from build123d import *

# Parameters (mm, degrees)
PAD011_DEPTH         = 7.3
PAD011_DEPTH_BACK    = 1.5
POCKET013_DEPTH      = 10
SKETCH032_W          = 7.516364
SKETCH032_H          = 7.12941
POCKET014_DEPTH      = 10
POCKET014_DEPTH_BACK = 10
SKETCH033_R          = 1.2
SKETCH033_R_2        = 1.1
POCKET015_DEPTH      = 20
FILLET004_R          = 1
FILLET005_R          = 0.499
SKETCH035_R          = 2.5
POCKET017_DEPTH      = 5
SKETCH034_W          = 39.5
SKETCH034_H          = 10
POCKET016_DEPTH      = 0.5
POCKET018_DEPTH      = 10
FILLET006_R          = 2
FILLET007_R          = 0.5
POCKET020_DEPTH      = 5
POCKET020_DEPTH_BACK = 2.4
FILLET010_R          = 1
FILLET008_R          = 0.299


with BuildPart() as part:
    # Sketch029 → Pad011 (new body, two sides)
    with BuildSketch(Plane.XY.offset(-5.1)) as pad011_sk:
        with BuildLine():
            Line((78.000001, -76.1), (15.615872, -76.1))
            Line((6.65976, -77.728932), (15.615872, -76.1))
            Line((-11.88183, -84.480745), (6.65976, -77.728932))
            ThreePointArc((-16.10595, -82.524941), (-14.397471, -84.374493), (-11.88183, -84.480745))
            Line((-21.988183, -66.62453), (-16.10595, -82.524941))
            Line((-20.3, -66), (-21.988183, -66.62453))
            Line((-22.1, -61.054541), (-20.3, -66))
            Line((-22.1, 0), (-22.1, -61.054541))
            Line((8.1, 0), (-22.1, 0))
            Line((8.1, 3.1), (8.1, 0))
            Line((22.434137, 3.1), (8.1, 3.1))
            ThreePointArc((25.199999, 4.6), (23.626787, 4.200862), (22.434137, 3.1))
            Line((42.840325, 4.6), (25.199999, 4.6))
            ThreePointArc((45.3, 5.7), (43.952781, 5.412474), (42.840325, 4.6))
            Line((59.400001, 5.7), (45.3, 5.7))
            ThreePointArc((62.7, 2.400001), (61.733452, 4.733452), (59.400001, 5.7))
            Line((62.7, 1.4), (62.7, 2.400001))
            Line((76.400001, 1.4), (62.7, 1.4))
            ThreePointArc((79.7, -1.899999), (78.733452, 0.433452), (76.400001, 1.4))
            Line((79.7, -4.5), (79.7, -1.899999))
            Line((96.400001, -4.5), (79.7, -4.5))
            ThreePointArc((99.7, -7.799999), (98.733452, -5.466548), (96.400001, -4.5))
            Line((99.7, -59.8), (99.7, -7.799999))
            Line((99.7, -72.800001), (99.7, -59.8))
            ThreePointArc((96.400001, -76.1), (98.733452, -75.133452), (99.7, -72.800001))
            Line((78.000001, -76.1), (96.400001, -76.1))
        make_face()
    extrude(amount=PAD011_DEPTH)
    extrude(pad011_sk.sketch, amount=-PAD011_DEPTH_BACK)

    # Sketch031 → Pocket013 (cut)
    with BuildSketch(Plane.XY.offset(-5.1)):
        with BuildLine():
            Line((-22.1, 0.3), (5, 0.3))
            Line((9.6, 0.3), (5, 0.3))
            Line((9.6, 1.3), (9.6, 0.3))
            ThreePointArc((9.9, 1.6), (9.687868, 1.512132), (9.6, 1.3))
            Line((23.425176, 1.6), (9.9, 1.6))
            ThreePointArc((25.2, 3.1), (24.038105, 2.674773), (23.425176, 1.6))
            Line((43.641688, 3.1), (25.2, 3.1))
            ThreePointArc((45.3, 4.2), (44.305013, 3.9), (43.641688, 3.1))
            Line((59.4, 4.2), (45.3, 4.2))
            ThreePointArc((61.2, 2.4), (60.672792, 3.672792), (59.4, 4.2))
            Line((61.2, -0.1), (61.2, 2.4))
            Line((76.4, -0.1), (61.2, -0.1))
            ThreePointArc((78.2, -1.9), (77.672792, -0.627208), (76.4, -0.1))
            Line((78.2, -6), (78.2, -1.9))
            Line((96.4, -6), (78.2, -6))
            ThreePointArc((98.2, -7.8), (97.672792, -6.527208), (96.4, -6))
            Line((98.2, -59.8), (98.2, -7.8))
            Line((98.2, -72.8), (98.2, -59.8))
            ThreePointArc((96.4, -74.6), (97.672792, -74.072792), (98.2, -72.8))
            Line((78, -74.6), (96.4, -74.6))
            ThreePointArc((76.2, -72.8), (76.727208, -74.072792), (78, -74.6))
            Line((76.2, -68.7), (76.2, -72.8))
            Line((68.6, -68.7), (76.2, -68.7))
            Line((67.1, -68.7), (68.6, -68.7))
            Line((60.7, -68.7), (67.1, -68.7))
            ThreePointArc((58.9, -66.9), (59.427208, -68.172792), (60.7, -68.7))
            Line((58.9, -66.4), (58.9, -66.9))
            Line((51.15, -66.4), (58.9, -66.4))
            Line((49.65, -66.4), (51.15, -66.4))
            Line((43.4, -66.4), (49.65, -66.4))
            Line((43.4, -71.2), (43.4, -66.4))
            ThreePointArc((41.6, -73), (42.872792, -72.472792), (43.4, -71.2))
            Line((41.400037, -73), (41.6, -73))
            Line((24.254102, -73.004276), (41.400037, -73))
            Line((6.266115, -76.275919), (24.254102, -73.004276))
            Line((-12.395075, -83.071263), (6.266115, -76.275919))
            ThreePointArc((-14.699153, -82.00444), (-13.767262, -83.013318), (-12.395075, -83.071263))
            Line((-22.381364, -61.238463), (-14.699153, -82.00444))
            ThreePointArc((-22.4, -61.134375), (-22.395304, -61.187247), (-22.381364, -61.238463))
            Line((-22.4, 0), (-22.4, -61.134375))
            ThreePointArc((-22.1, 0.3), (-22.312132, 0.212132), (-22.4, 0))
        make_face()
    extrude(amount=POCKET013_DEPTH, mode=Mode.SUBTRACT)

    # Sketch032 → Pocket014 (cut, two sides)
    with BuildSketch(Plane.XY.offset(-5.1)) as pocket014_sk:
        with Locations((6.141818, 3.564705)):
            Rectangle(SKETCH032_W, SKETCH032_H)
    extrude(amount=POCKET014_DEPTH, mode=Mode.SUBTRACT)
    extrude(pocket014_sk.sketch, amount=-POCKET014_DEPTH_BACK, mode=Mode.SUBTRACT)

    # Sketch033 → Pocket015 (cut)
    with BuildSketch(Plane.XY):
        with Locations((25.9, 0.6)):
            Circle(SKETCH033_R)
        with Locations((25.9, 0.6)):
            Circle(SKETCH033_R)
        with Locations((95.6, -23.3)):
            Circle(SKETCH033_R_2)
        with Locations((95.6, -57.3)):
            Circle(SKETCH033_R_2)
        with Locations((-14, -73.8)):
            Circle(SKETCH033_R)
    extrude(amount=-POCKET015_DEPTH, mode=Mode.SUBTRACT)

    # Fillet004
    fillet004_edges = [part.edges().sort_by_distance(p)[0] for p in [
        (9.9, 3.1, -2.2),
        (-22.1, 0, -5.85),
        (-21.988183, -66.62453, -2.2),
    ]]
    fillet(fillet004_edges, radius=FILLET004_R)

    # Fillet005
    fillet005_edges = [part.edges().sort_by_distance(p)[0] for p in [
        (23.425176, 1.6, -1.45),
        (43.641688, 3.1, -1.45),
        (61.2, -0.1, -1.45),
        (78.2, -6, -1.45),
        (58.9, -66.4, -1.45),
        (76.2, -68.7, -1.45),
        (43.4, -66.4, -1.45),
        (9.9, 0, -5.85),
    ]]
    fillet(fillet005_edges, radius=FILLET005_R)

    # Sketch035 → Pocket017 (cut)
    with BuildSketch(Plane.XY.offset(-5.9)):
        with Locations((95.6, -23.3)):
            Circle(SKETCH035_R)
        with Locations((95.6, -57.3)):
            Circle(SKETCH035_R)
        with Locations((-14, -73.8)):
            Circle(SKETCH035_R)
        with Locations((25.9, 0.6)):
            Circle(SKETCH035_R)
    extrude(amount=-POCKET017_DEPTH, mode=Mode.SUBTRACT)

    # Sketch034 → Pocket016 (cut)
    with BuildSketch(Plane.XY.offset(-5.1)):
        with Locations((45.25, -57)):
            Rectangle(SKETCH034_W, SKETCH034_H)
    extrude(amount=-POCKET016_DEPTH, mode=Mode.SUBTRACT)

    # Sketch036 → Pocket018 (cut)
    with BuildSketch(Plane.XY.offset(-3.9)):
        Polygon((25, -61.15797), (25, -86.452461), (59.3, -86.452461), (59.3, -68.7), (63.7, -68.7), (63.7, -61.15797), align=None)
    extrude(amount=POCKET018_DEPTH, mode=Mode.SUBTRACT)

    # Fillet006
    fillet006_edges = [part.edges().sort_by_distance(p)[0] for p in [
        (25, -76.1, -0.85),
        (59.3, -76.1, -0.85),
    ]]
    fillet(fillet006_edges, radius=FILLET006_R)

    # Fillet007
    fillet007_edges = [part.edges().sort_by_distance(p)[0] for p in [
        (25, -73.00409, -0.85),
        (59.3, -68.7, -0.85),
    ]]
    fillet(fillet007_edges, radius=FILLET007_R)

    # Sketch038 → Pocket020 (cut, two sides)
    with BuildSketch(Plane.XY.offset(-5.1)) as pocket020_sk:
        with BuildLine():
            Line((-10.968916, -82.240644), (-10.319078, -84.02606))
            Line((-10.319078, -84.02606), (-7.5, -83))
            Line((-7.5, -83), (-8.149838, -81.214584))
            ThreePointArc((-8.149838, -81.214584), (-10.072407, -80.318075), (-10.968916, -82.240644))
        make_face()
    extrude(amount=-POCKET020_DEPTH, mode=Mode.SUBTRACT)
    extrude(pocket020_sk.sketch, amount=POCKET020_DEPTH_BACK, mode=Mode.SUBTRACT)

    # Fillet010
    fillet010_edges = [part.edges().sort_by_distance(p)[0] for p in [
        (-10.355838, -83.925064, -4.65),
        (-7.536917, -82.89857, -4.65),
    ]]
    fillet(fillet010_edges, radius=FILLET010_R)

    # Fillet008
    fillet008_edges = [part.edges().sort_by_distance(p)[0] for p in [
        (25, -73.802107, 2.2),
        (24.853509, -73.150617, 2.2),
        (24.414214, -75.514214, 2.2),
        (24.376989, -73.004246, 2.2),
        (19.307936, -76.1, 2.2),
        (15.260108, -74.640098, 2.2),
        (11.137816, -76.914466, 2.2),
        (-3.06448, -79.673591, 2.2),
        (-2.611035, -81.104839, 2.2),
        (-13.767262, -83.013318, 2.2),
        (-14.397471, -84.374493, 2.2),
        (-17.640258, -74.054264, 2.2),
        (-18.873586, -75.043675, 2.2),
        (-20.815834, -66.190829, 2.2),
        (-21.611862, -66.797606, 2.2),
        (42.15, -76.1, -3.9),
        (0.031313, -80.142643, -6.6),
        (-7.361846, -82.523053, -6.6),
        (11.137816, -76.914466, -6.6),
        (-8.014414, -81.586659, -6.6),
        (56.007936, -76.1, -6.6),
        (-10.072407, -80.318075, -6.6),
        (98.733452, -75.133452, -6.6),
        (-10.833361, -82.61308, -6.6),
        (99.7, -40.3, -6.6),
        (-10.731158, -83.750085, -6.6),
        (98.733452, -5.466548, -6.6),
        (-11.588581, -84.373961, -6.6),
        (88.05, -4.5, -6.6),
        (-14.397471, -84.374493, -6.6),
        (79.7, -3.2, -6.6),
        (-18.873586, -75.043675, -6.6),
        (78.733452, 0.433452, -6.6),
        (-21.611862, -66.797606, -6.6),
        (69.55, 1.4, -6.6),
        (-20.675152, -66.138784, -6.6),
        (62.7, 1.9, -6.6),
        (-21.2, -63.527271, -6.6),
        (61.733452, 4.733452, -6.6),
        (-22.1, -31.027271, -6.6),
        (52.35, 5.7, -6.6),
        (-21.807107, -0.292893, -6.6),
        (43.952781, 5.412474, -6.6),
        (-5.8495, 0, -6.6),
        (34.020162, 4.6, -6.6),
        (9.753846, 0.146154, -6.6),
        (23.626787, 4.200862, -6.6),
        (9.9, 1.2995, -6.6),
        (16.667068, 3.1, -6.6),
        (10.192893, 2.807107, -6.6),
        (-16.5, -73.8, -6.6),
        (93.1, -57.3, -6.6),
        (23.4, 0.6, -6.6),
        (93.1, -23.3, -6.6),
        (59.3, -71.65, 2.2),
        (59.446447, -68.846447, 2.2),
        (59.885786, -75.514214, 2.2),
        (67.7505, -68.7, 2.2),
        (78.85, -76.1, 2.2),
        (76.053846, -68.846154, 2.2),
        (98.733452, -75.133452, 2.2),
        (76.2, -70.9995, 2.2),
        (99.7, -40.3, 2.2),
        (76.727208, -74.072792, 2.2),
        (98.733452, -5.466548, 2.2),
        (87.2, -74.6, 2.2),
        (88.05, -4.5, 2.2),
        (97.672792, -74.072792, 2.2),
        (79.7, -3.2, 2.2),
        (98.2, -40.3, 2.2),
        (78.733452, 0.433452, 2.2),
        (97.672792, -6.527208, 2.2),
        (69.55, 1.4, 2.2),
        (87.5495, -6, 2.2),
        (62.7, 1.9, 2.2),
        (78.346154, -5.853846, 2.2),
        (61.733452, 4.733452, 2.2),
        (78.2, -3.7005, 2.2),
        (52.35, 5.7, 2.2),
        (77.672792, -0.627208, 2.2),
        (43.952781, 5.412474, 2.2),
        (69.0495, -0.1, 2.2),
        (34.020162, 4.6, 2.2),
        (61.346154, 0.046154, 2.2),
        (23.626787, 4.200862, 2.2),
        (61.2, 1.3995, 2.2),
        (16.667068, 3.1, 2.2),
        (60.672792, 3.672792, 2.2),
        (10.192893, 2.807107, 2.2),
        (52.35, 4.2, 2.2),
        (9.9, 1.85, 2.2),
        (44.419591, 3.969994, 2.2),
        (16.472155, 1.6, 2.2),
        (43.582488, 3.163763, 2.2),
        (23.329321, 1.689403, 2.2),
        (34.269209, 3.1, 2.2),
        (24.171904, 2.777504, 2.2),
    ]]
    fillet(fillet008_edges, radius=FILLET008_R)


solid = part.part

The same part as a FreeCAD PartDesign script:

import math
import FreeCAD as App
import Part
import Sketcher

V = App.Vector
Q = App.Units.Quantity


def edges_at(feature, points):
    """Names of the edges that pass closest to the given points."""
    edges = feature.Shape.Edges
    near = lambda p: min(range(len(edges)), key=lambda i: edges[i].distToShape(Part.Vertex(*p))[0])
    return sorted({f"Edge{near(p) + 1}" for p in points})

doc = App.newDocument("Part")
body = doc.addObject("PartDesign::Body", "Body")

sketch1 = body.newObject("Sketcher::SketchObject", "Sketch")
sketch1.AttachmentSupport = (doc.getObject("XY_Plane"), [""])
sketch1.MapMode = "FlatFace"
sketch1.AttachmentOffset = App.Placement(V(0, 0, -5.1), App.Rotation())
sketch1.addGeometry([
    Part.LineSegment(V(15.6, -76.1, 0), V(96.4, -76.1, 0)),
    Part.ArcOfCircle(Part.Circle(V(96.4, -72.8, 0), V(0, 0, 1), 3.3), math.radians(-90), math.radians(0)),
    Part.LineSegment(V(99.7, -72.8, 0), V(99.7, -7.8, 0)),
    Part.ArcOfCircle(Part.Circle(V(96.4, -7.8, 0), V(0, 0, 1), 3.3), math.radians(0), math.radians(90)),
    Part.LineSegment(V(96.4, -4.5, 0), V(79.7, -4.5, 0)),
    Part.LineSegment(V(79.7, -4.5, 0), V(79.7, -1.9, 0)),
    Part.ArcOfCircle(Part.Circle(V(76.4, -1.9, 0), V(0, 0, 1), 3.3), math.radians(0), math.radians(90)),
    Part.LineSegment(V(76.4, 1.4, 0), V(62.7, 1.4, 0)),
    Part.LineSegment(V(62.7, 1.4, 0), V(62.7, 2.4, 0)),
    Part.ArcOfCircle(Part.Circle(V(59.4, 2.4, 0), V(0, 0, 1), 3.3), math.radians(0), math.radians(90)),
    Part.LineSegment(V(59.4, 5.7, 0), V(45.3, 5.7, 0)),
    Part.ArcOfCircle(Part.Circle(V(45.3, 2.4, 0), V(0, 0, 1), 3.3), math.radians(90), math.radians(138)),
    Part.LineSegment(V(42.8, 4.6, 0), V(25.2, 4.6, 0)),
    Part.ArcOfCircle(Part.Circle(V(25.2, 1.3, 0), V(0, 0, 1), 3.3), math.radians(90), math.radians(147)),
    Part.LineSegment(V(22.4, 3.1, 0), V(8.1, 3.1, 0)),
    Part.LineSegment(V(8.1, 3.1, 0), V(8.1, 0, 0)),
    Part.LineSegment(V(8.1, 0, 0), V(-22.1, 0, 0)),
    Part.LineSegment(V(-22.1, 0, 0), V(-22.1, -61.1, 0)),
    Part.LineSegment(V(-22.1, -61.1, 0), V(-20.3, -66, 0)),
    Part.LineSegment(V(-20.3, -66, 0), V(-22, -66.6, 0)),
    Part.LineSegment(V(-22, -66.6, 0), V(-16.1, -82.5, 0)),
    Part.ArcOfCircle(Part.Circle(V(-13, -81.4, 0), V(0, 0, 1), 3.3), math.radians(-160), math.radians(-70)),
    Part.LineSegment(V(-11.9, -84.5, 0), V(6.7, -77.7, 0)),
    Part.LineSegment(V(6.7, -77.7, 0), V(15.6, -76.1, 0)),
], False)
sketch1.addConstraint([
    Sketcher.Constraint("Tangent", 0, 2, 1, 1),
    Sketcher.Constraint("Tangent", 1, 2, 2, 1),
    Sketcher.Constraint("Tangent", 2, 2, 3, 1),
    Sketcher.Constraint("Tangent", 3, 2, 4, 1),
    Sketcher.Constraint("Coincident", 4, 2, 5, 1),
    Sketcher.Constraint("Tangent", 5, 2, 6, 1),
    Sketcher.Constraint("Tangent", 6, 2, 7, 1),
    Sketcher.Constraint("Coincident", 7, 2, 8, 1),
    Sketcher.Constraint("Tangent", 8, 2, 9, 1),
    Sketcher.Constraint("Tangent", 9, 2, 10, 1),
    Sketcher.Constraint("Tangent", 10, 2, 11, 1),
    Sketcher.Constraint("Coincident", 11, 2, 12, 1),
    Sketcher.Constraint("Tangent", 12, 2, 13, 1),
    Sketcher.Constraint("Coincident", 13, 2, 14, 1),
    Sketcher.Constraint("Coincident", 14, 2, 15, 1),
    Sketcher.Constraint("Coincident", 15, 2, 16, 1),
    Sketcher.Constraint("Coincident", 16, 2, 17, 1),
    Sketcher.Constraint("Coincident", 17, 2, 18, 1),
    Sketcher.Constraint("Coincident", 18, 2, 19, 1),
    Sketcher.Constraint("Coincident", 19, 2, 20, 1),
    Sketcher.Constraint("Coincident", 20, 2, 21, 1),
    Sketcher.Constraint("Coincident", 21, 2, 22, 1),
    Sketcher.Constraint("Coincident", 22, 2, 23, 1),
    Sketcher.Constraint("Coincident", 23, 2, 0, 1),
    Sketcher.Constraint("Horizontal", 0),
    Sketcher.Constraint("Vertical", 2),
    Sketcher.Constraint("Horizontal", 4),
    Sketcher.Constraint("Vertical", 5),
    Sketcher.Constraint("Horizontal", 7),
    Sketcher.Constraint("Vertical", 8),
    Sketcher.Constraint("Horizontal", 10),
    Sketcher.Constraint("Horizontal", 12),
    Sketcher.Constraint("Horizontal", 14),
    Sketcher.Constraint("Vertical", 15),
    Sketcher.Constraint("Horizontal", 16),
    Sketcher.Constraint("Vertical", 17),
    Sketcher.Constraint("Equal", 1, 3),
    Sketcher.Constraint("Equal", 3, 6),
    Sketcher.Constraint("Equal", 6, 9),
    Sketcher.Constraint("Equal", 9, 11),
    Sketcher.Constraint("Equal", 9, 13),
    Sketcher.Constraint("PointOnObject", 15, 2, -1),
    Sketcher.Constraint("Perpendicular", 19, 20),
    Sketcher.Constraint("Radius", 1, 3.300001),
    Sketcher.Constraint("DistanceY", 2, 1, 2, 2, 65.000002),
    Sketcher.Constraint("DistanceY", 8, 1, 8, 2, 1.000001),
    Sketcher.Constraint("Angle", 18, Q("-69.999999 deg")),
    Sketcher.Constraint("DistanceX", 4, 2, 4, 1, 16.700001),
    Sketcher.Constraint("DistanceX", 7, 2, 7, 1, 13.700001),
    Sketcher.Constraint("DistanceX", 10, 2, 10, 1, 14.100001),
    Sketcher.Constraint("DistanceX", 16, 2, 16, 1, 30.2),
    Sketcher.Constraint("DistanceY", 5, 1, 5, 2, 2.600001),
    Sketcher.Constraint("DistanceY", 15, 2, 15, 1, 3.1),
    Sketcher.Constraint("DistanceY", 18, 2, -1, 1, 66.0),
    Sketcher.Constraint("Distance", 19, 1.8),
    Sketcher.Constraint("DistanceX", -1, 1, 1, 3, 96.399999),
    Sketcher.Constraint("DistanceY", 1, 3, -1, 1, 72.799999),
    Sketcher.Constraint("DistanceX", -1, 1, 13, 3, 25.2),
    Sketcher.Constraint("DistanceY", -1, 1, 13, 3, 1.300001),
    Sketcher.Constraint("DistanceX", -1, 1, 14, 2, 8.1),
    Sketcher.Constraint("DistanceX", 18, 2, -1, 1, 20.3),
    Sketcher.Constraint("Radius", 21, 3.300067),
    Sketcher.Constraint("DistanceX", 0, 1, 0, 2, 80.784129),
    Sketcher.Constraint("DistanceY", 20, 2, 17, 2, 21.4704),
    Sketcher.Constraint("DistanceY", 21, 2, 21, 3, 3.100901),
    Sketcher.Constraint("Distance", 22, 19.732652),
    Sketcher.Constraint("Distance", 23, 9.103041),
    Sketcher.Constraint("DistanceY", 19, 2, -1, 1, 66.62453),
    Sketcher.Constraint("DistanceX", 21, 2, -1, 1, 11.88183),
])
pad1 = body.newObject("PartDesign::Pad", "Pad")
pad1.Profile = sketch1
pad1.Type = "TwoLengths"
pad1.Length = 7.3
pad1.Length2 = 1.5

sketch2 = body.newObject("Sketcher::SketchObject", "Sketch001")
sketch2.AttachmentSupport = (doc.getObject("XY_Plane"), [""])
sketch2.MapMode = "FlatFace"
sketch2.AttachmentOffset = App.Placement(V(0, 0, -5.1), App.Rotation())
sketch2.addGeometry([
    Part.LineSegment(V(9.6, 0.3, 0), V(-22.1, 0.3, 0)),
    Part.ArcOfCircle(Part.Circle(V(-22.1, 0, 0), V(0, 0, 1), 0.3), math.radians(90.000022), math.radians(179.999978)),
    Part.LineSegment(V(-22.4, 0, 0), V(-22.4, -61.134375, 0)),
    Part.ArcOfCircle(Part.Circle(V(-22.099989, -61.134373, 0), V(0, 0, 1), 0.300011), math.radians(-179.999633), math.radians(-159.698902)),
    Part.LineSegment(V(-22.381364, -61.238463, 0), V(-14.699153, -82.00444, 0)),
    Part.ArcOfCircle(Part.Circle(V(-13.010969, -81.379909, 0), V(0, 0, 1), 1.800001), math.radians(-159.698424), math.radians(-69.991278)),
    Part.LineSegment(V(-12.395075, -83.071263, 0), V(6.266115, -76.275919, 0)),
    Part.LineSegment(V(6.266115, -76.275919, 0), V(24.254102, -73.004276, 0)),
    Part.LineSegment(V(24.254102, -73.004276, 0), V(41.400037, -73, 0)),
    Part.LineSegment(V(41.400037, -73, 0), V(41.6, -73, 0)),
    Part.ArcOfCircle(Part.Circle(V(41.599999, -71.199999, 0), V(0, 0, 1), 1.800001), math.radians(-89.999978), math.radians(-0.000022)),
    Part.LineSegment(V(43.4, -71.2, 0), V(43.4, -66.4, 0)),
    Part.LineSegment(V(43.4, -66.4, 0), V(58.9, -66.4, 0)),
    Part.LineSegment(V(58.9, -66.4, 0), V(58.9, -66.9, 0)),
    Part.ArcOfCircle(Part.Circle(V(60.700001, -66.899999, 0), V(0, 0, 1), 1.800001), math.radians(-179.999978), math.radians(-90.000022)),
    Part.LineSegment(V(60.7, -68.7, 0), V(76.2, -68.7, 0)),
    Part.LineSegment(V(76.2, -68.7, 0), V(76.2, -72.8, 0)),
    Part.ArcOfCircle(Part.Circle(V(78.000001, -72.799999, 0), V(0, 0, 1), 1.800001), math.radians(-179.999978), math.radians(-90.000022)),
    Part.LineSegment(V(78, -74.6, 0), V(96.4, -74.6, 0)),
    Part.ArcOfCircle(Part.Circle(V(96.399999, -72.799999, 0), V(0, 0, 1), 1.800001), math.radians(-89.999978), math.radians(-0.000022)),
    Part.LineSegment(V(98.2, -72.8, 0), V(98.2, -7.8, 0)),
    Part.ArcOfCircle(Part.Circle(V(96.399999, -7.800001, 0), V(0, 0, 1), 1.800001), math.radians(0.000022), math.radians(89.999978)),
    Part.LineSegment(V(96.4, -6, 0), V(78.2, -6, 0)),
    Part.LineSegment(V(78.2, -6, 0), V(78.2, -1.9, 0)),
    Part.ArcOfCircle(Part.Circle(V(76.399999, -1.900001, 0), V(0, 0, 1), 1.800001), math.radians(0.000022), math.radians(89.999978)),
    Part.LineSegment(V(76.4, -0.1, 0), V(61.2, -0.1, 0)),
    Part.LineSegment(V(61.2, -0.1, 0), V(61.2, 2.4, 0)),
    Part.ArcOfCircle(Part.Circle(V(59.399999, 2.399999, 0), V(0, 0, 1), 1.800001), math.radians(0.000022), math.radians(89.999978)),
    Part.LineSegment(V(59.4, 4.2, 0), V(45.3, 4.2, 0)),
    Part.ArcOfCircle(Part.Circle(V(45.3, 2.4, 0), V(0, 0, 1), 1.8), math.radians(90.000015), math.radians(157.114617)),
    Part.LineSegment(V(43.641688, 3.1, 0), V(25.2, 3.1, 0)),
    Part.ArcOfCircle(Part.Circle(V(25.199999, 1.300001, 0), V(0, 0, 1), 1.799999), math.radians(89.999982), math.radians(170.405947)),
    Part.LineSegment(V(23.425176, 1.6, 0), V(9.9, 1.6, 0)),
    Part.ArcOfCircle(Part.Circle(V(9.9, 1.3, 0), V(0, 0, 1), 0.3), math.radians(90.000022), math.radians(179.999978)),
    Part.LineSegment(V(9.6, 1.3, 0), V(9.6, 0.3, 0)),
], False)
sketch2.addConstraint([
    Sketcher.Constraint("Coincident", 0, 2, 1, 1),
    Sketcher.Constraint("Coincident", 1, 2, 2, 1),
    Sketcher.Constraint("Coincident", 2, 2, 3, 1),
    Sketcher.Constraint("Coincident", 3, 2, 4, 1),
    Sketcher.Constraint("Coincident", 4, 2, 5, 1),
    Sketcher.Constraint("Coincident", 5, 2, 6, 1),
    Sketcher.Constraint("Coincident", 6, 2, 7, 1),
    Sketcher.Constraint("Coincident", 7, 2, 8, 1),
    Sketcher.Constraint("Coincident", 8, 2, 9, 1),
    Sketcher.Constraint("Coincident", 9, 2, 10, 1),
    Sketcher.Constraint("Coincident", 10, 2, 11, 1),
    Sketcher.Constraint("Coincident", 11, 2, 12, 1),
    Sketcher.Constraint("Coincident", 12, 2, 13, 1),
    Sketcher.Constraint("Coincident", 13, 2, 14, 1),
    Sketcher.Constraint("Coincident", 14, 2, 15, 1),
    Sketcher.Constraint("Coincident", 15, 2, 16, 1),
    Sketcher.Constraint("Coincident", 16, 2, 17, 1),
    Sketcher.Constraint("Coincident", 17, 2, 18, 1),
    Sketcher.Constraint("Coincident", 18, 2, 19, 1),
    Sketcher.Constraint("Coincident", 19, 2, 20, 1),
    Sketcher.Constraint("Coincident", 20, 2, 21, 1),
    Sketcher.Constraint("Coincident", 21, 2, 22, 1),
    Sketcher.Constraint("Coincident", 22, 2, 23, 1),
    Sketcher.Constraint("Coincident", 23, 2, 24, 1),
    Sketcher.Constraint("Coincident", 24, 2, 25, 1),
    Sketcher.Constraint("Coincident", 25, 2, 26, 1),
    Sketcher.Constraint("Coincident", 26, 2, 27, 1),
    Sketcher.Constraint("Coincident", 27, 2, 28, 1),
    Sketcher.Constraint("Coincident", 28, 2, 29, 1),
    Sketcher.Constraint("Coincident", 29, 2, 30, 1),
    Sketcher.Constraint("Coincident", 30, 2, 31, 1),
    Sketcher.Constraint("Coincident", 31, 2, 32, 1),
    Sketcher.Constraint("Coincident", 32, 2, 33, 1),
    Sketcher.Constraint("Coincident", 33, 2, 34, 1),
    Sketcher.Constraint("Coincident", 34, 2, 0, 1),
    Sketcher.Constraint("Horizontal", 0),
    Sketcher.Constraint("Vertical", 2),
    Sketcher.Constraint("Horizontal", 9),
    Sketcher.Constraint("Vertical", 11),
    Sketcher.Constraint("Horizontal", 12),
    Sketcher.Constraint("Vertical", 13),
    Sketcher.Constraint("Horizontal", 15),
    Sketcher.Constraint("Vertical", 16),
    Sketcher.Constraint("Horizontal", 18),
    Sketcher.Constraint("Vertical", 20),
    Sketcher.Constraint("Horizontal", 22),
    Sketcher.Constraint("Vertical", 23),
    Sketcher.Constraint("Horizontal", 25),
    Sketcher.Constraint("Vertical", 26),
    Sketcher.Constraint("Horizontal", 28),
    Sketcher.Constraint("Horizontal", 30),
    Sketcher.Constraint("Horizontal", 32),
    Sketcher.Constraint("Vertical", 34),
    Sketcher.Constraint("PointOnObject", 1, 3, -1),
    Sketcher.Constraint("PointOnObject", 1, 2, -1),
    Sketcher.Constraint("Radius", 1, 0.3),
    Sketcher.Constraint("Radius", 5, 1.800001),
    Sketcher.Constraint("Radius", 10, 1.800001),
    Sketcher.Constraint("Radius", 14, 1.800001),
    Sketcher.Constraint("Radius", 17, 1.800001),
    Sketcher.Constraint("Radius", 19, 1.800001),
    Sketcher.Constraint("Radius", 21, 1.800001),
    Sketcher.Constraint("Radius", 24, 1.800001),
    Sketcher.Constraint("Radius", 27, 1.800001),
    Sketcher.Constraint("Radius", 29, 1.8),
    Sketcher.Constraint("Radius", 31, 1.799999),
    Sketcher.Constraint("Radius", 33, 0.3),
    Sketcher.Constraint("DistanceY", 20, 1, 20, 2, 65.0),
    Sketcher.Constraint("DistanceY", 34, 2, 34, 1, 1.0),
    Sketcher.Constraint("DistanceX", 0, 2, 0, 1, 31.7),
    Sketcher.Constraint("DistanceX", 12, 1, 12, 2, 15.5),
    Sketcher.Constraint("DistanceX", 15, 1, 15, 2, 15.5),
    Sketcher.Constraint("DistanceX", 18, 1, 18, 2, 18.4),
    Sketcher.Constraint("DistanceX", 22, 2, 22, 1, 18.2),
    Sketcher.Constraint("DistanceX", 25, 2, 25, 1, 15.2),
    Sketcher.Constraint("DistanceX", 28, 2, 28, 1, 14.1),
    Sketcher.Constraint("DistanceY", 11, 1, 11, 2, 4.8),
    Sketcher.Constraint("DistanceY", 13, 2, 13, 1, 0.5),
    Sketcher.Constraint("DistanceY", 16, 2, 16, 1, 4.1),
    Sketcher.Constraint("DistanceY", 23, 1, 23, 2, 4.1),
    Sketcher.Constraint("DistanceY", 26, 1, 26, 2, 2.5),
    Sketcher.Constraint("DistanceX", -1, 1, 17, 3, 78.000001),
    Sketcher.Constraint("DistanceY", 8, 2, -1, 1, 73.0),
    Sketcher.Constraint("DistanceX", -1, 1, 17, 2, 78.0),
    Sketcher.Constraint("DistanceY", 21, 2, -1, 1, 6.0),
    Sketcher.Constraint("DistanceY", 19, 3, 21, 3, 64.999999),
    Sketcher.Constraint("DistanceX", 24, 3, 21, 3, 20.0),
    Sketcher.Constraint("DistanceY", 14, 3, 24, 3, 64.999999),
    Sketcher.Constraint("DistanceX", 27, 3, 24, 3, 17.0),
    Sketcher.Constraint("DistanceX", 1, 3, 33, 3, 32.0),
    Sketcher.Constraint("DistanceY", 0, 2, 33, 3, 1.0),
    Sketcher.Constraint("DistanceY", 0, 2, 31, 3, 1.000001),
    Sketcher.Constraint("DistanceX", 16, 2, 19, 2, 22.0),
    Sketcher.Constraint("DistanceX", 27, 2, 24, 2, 17.0),
    Sketcher.Constraint("DistanceX", 0, 2, 32, 2, 32.0),
    Sketcher.Constraint("DistanceX", 1, 3, -1, 1, 22.1),
    Sketcher.Constraint("DistanceX", -1, 1, 10, 3, 41.599999),
    Sketcher.Constraint("DistanceY", 14, 3, -1, 1, 66.899999),
    Sketcher.Constraint("DistanceY", -1, 1, 27, 3, 2.399999),
    Sketcher.Constraint("DistanceX", -1, 1, 29, 3, 45.3),
    Sketcher.Constraint("DistanceX", -1, 1, 31, 3, 25.199999),
    Sketcher.Constraint("DistanceX", -1, 1, 9, 2, 41.6),
    Sketcher.Constraint("DistanceY", 10, 2, -1, 1, 71.2),
    Sketcher.Constraint("DistanceY", 19, 2, -1, 1, 72.8),
    Sketcher.Constraint("DistanceX", -1, 1, 30, 2, 25.2),
    Sketcher.Constraint("Radius", 3, 0.300011),
    Sketcher.Constraint("DistanceX", -1, 1, 7, 2, 24.254102),
    Sketcher.Constraint("DistanceY", 5, 2, 3, 2, 21.8328),
    Sketcher.Constraint("Distance", 7, 18.283088),
    Sketcher.Constraint("DistanceX", 9, 1, 9, 2, 0.199963),
    Sketcher.Constraint("DistanceY", 2, 2, 2, 1, 61.134375),
    Sketcher.Constraint("DistanceX", 5, 3, -1, 1, 13.010969),
    Sketcher.Constraint("DistanceY", 5, 3, -1, 1, 81.379909),
    Sketcher.Constraint("DistanceY", 4, 2, -1, 1, 82.00444),
    Sketcher.Constraint("DistanceY", 6, 2, -1, 1, 76.275919),
    Sketcher.Constraint("DistanceY", 3, 2, 3, 3, 0.10409),
    Sketcher.Constraint("DistanceX", 3, 2, 5, 2, 9.986289),
    Sketcher.Constraint("DistanceX", 5, 2, 6, 2, 18.66119),
])
pocket1 = body.newObject("PartDesign::Pocket", "Pocket")
pocket1.Profile = sketch2
pocket1.Length = 10
pocket1.Reversed = True

sketch3 = body.newObject("Sketcher::SketchObject", "Sketch002")
sketch3.AttachmentSupport = (doc.getObject("XY_Plane"), [""])
sketch3.MapMode = "FlatFace"
sketch3.AttachmentOffset = App.Placement(V(0, 0, -5.1), App.Rotation())
sketch3.addGeometry([
    Part.LineSegment(V(2, 7, 0), V(2, 0, 0)),
    Part.LineSegment(V(2, 0, 0), V(10, 0, 0)),
    Part.LineSegment(V(10, 0, 0), V(10, 7, 0)),
    Part.LineSegment(V(10, 7, 0), V(2, 7, 0)),
], False)
sketch3.addConstraint([
    Sketcher.Constraint("Coincident", 0, 2, 1, 1),
    Sketcher.Constraint("Coincident", 1, 2, 2, 1),
    Sketcher.Constraint("Coincident", 2, 2, 3, 1),
    Sketcher.Constraint("Coincident", 3, 2, 0, 1),
    Sketcher.Constraint("Vertical", 0),
    Sketcher.Constraint("Horizontal", 1),
    Sketcher.Constraint("Vertical", 2),
    Sketcher.Constraint("Horizontal", 3),
    Sketcher.Constraint("PointOnObject", 0, 2, -1),
    Sketcher.Constraint("DistanceX", -1, 1, 1, 2, 9.9),
    Sketcher.Constraint("DistanceY", 0, 2, 0, 1, 7.12941),
    Sketcher.Constraint("DistanceX", 1, 1, 1, 2, 7.516364),
])
pocket2 = body.newObject("PartDesign::Pocket", "Pocket001")
pocket2.Profile = sketch3
pocket2.Type = "ThroughAll"
pocket2.Midplane = True

sketch4 = body.newObject("Sketcher::SketchObject", "Sketch003")
sketch4.AttachmentSupport = (doc.getObject("XY_Plane"), [""])
sketch4.MapMode = "FlatFace"
sketch4.addGeometry([
    Part.Circle(V(25.9, 0.6, 0), V(0, 0, 1), 1.2),
    Part.Circle(V(95.6, -23.3, 0), V(0, 0, 1), 1.1),
    Part.Circle(V(95.6, -57.3, 0), V(0, 0, 1), 1.1),
    Part.Circle(V(-14, -73.8, 0), V(0, 0, 1), 1.2),
], False)
sketch4.addConstraint([
    Sketcher.Constraint("Equal", 1, 2),
    Sketcher.Constraint("Equal", 0, 3),
    Sketcher.Constraint("Vertical", 1, 3, 2, 3),
    Sketcher.Constraint("Diameter", 0, 2.4),
    Sketcher.Constraint("Diameter", 1, 2.2),
    Sketcher.Constraint("DistanceX", 3, 3, -1, 1, 14.0),
    Sketcher.Constraint("DistanceY", 2, 3, 1, 3, 34.0),
    Sketcher.Constraint("DistanceX", -1, 1, 0, 3, 25.9),
    Sketcher.Constraint("DistanceY", -1, 1, 0, 3, 0.6),
    Sketcher.Constraint("DistanceX", -1, 1, 1, 3, 95.6),
    Sketcher.Constraint("DistanceY", 1, 3, -1, 1, 23.3),
    Sketcher.Constraint("DistanceY", 3, 3, -1, 1, 73.8),
])
pocket3 = body.newObject("PartDesign::Pocket", "Pocket002")
pocket3.Profile = sketch4
pocket3.Length = 20
doc.recompute()

fillet = body.newObject("PartDesign::Fillet", "Fillet")
fillet.Base = (pocket3, edges_at(pocket3, [(9.9, 3.1, -2.2), (-22.1, 0, -5.85), (-21.988, -66.625, -2.2)]))
fillet.Radius = 1
doc.recompute()

fillet2 = body.newObject("PartDesign::Fillet", "Fillet001")
fillet2.Base = (fillet, edges_at(fillet, [
    (23.425, 1.6, -1.45),
    (43.642, 3.1, -1.45),
    (61.2, -0.1, -1.45),
    (78.2, -6, -1.45),
    (58.9, -66.4, -1.45),
    (76.2, -68.7, -1.45),
    (43.4, -66.4, -1.45),
    (9.9, 0, -5.85),
]))
fillet2.Radius = 0.499

sketch5 = body.newObject("Sketcher::SketchObject", "Sketch004")
sketch5.AttachmentSupport = (doc.getObject("XY_Plane"), [""])
sketch5.MapMode = "FlatFace"
sketch5.AttachmentOffset = App.Placement(V(0, 0, -5.9), App.Rotation())
sketch5.addGeometry([
    Part.Circle(V(95.6, -23.3, 0), V(0, 0, 1), 2.5),
    Part.Circle(V(95.6, -57.3, 0), V(0, 0, 1), 2.5),
    Part.Circle(V(-14, -73.8, 0), V(0, 0, 1), 2.5),
    Part.Circle(V(25.9, 0.6, 0), V(0, 0, 1), 2.5),
], False)
sketch5.addConstraint([
    Sketcher.Constraint("Equal", 0, 1),
    Sketcher.Constraint("Equal", 1, 2),
    Sketcher.Constraint("Equal", 2, 3),
    Sketcher.Constraint("Vertical", 0, 3, 1, 3),
    Sketcher.Constraint("Diameter", 0, 5.0),
    Sketcher.Constraint("DistanceX", 2, 3, -1, 1, 14.0),
    Sketcher.Constraint("DistanceY", 1, 3, 0, 3, 34.0),
    Sketcher.Constraint("DistanceX", -1, 1, 0, 3, 95.6),
    Sketcher.Constraint("DistanceY", 0, 3, -1, 1, 23.3),
    Sketcher.Constraint("DistanceY", 2, 3, -1, 1, 73.8),
    Sketcher.Constraint("DistanceX", -1, 1, 3, 3, 25.9),
    Sketcher.Constraint("DistanceY", -1, 1, 3, 3, 0.6),
])
pocket4 = body.newObject("PartDesign::Pocket", "Pocket003")
pocket4.Profile = sketch5
pocket4.Length = 5

sketch6 = body.newObject("Sketcher::SketchObject", "Sketch005")
sketch6.AttachmentSupport = (doc.getObject("XY_Plane"), [""])
sketch6.MapMode = "FlatFace"
sketch6.AttachmentOffset = App.Placement(V(0, 0, -5.1), App.Rotation())
sketch6.addGeometry([
    Part.LineSegment(V(26, -52, 0), V(26, -62, 0)),
    Part.LineSegment(V(26, -62, 0), V(65, -62, 0)),
    Part.LineSegment(V(65, -62, 0), V(65, -52, 0)),
    Part.LineSegment(V(65, -52, 0), V(26, -52, 0)),
], False)
sketch6.addConstraint([
    Sketcher.Constraint("Coincident", 0, 2, 1, 1),
    Sketcher.Constraint("Coincident", 1, 2, 2, 1),
    Sketcher.Constraint("Coincident", 2, 2, 3, 1),
    Sketcher.Constraint("Coincident", 3, 2, 0, 1),
    Sketcher.Constraint("Vertical", 0),
    Sketcher.Constraint("Horizontal", 1),
    Sketcher.Constraint("Vertical", 2),
    Sketcher.Constraint("Horizontal", 3),
    Sketcher.Constraint("DistanceY", 0, 2, 0, 1, 10.0),
    Sketcher.Constraint("DistanceX", 1, 1, 1, 2, 39.5),
    Sketcher.Constraint("DistanceY", 0, 2, -1, 1, 62.0),
    Sketcher.Constraint("DistanceX", -1, 1, 1, 2, 65.0),
])
pocket5 = body.newObject("PartDesign::Pocket", "Pocket004")
pocket5.Profile = sketch6
pocket5.Length = 0.5

sketch7 = body.newObject("Sketcher::SketchObject", "Sketch006")
sketch7.AttachmentSupport = (doc.getObject("XY_Plane"), [""])
sketch7.MapMode = "FlatFace"
sketch7.AttachmentOffset = App.Placement(V(0, 0, -3.9), App.Rotation())
sketch7.addGeometry([
    Part.LineSegment(V(25, -61.2, 0), V(25, -86.5, 0)),
    Part.LineSegment(V(25, -86.5, 0), V(59.3, -86.5, 0)),
    Part.LineSegment(V(59.3, -86.5, 0), V(59.3, -68.7, 0)),
    Part.LineSegment(V(59.3, -68.7, 0), V(63.7, -68.7, 0)),
    Part.LineSegment(V(63.7, -68.7, 0), V(63.7, -61.2, 0)),
    Part.LineSegment(V(63.7, -61.2, 0), V(25, -61.2, 0)),
], False)
sketch7.addConstraint([
    Sketcher.Constraint("Coincident", 0, 2, 1, 1),
    Sketcher.Constraint("Coincident", 1, 2, 2, 1),
    Sketcher.Constraint("Coincident", 2, 2, 3, 1),
    Sketcher.Constraint("Coincident", 3, 2, 4, 1),
    Sketcher.Constraint("Coincident", 4, 2, 5, 1),
    Sketcher.Constraint("Coincident", 5, 2, 0, 1),
    Sketcher.Constraint("Vertical", 0),
    Sketcher.Constraint("Horizontal", 1),
    Sketcher.Constraint("Vertical", 2),
    Sketcher.Constraint("Horizontal", 3),
    Sketcher.Constraint("Vertical", 4),
    Sketcher.Constraint("Horizontal", 5),
    Sketcher.Constraint("DistanceX", 1, 1, 1, 2, 34.3),
    Sketcher.Constraint("DistanceX", 3, 1, 3, 2, 4.4),
    Sketcher.Constraint("DistanceX", -1, 1, 0, 2, 25.0),
    Sketcher.Constraint("DistanceY", 2, 2, -1, 1, 68.7),
    Sketcher.Constraint("DistanceY", 0, 2, 0, 1, 25.294491),
    Sketcher.Constraint("DistanceY", 2, 1, 2, 2, 17.752461),
])
pocket6 = body.newObject("PartDesign::Pocket", "Pocket005")
pocket6.Profile = sketch7
pocket6.Length = 10
pocket6.Reversed = True
doc.recompute()

fillet3 = body.newObject("PartDesign::Fillet", "Fillet002")
fillet3.Base = (pocket6, edges_at(pocket6, [(25, -76.1, -0.85), (59.3, -76.1, -0.85)]))
fillet3.Radius = 2
doc.recompute()

fillet4 = body.newObject("PartDesign::Fillet", "Fillet003")
fillet4.Base = (fillet3, edges_at(fillet3, [(25, -73.004, -0.85), (59.3, -68.7, -0.85)]))
fillet4.Radius = 0.5

sketch8 = body.newObject("Sketcher::SketchObject", "Sketch007")
sketch8.AttachmentSupport = (doc.getObject("XY_Plane"), [""])
sketch8.MapMode = "FlatFace"
sketch8.AttachmentOffset = App.Placement(V(0, 0, -5.1), App.Rotation())
sketch8.addGeometry([
    Part.LineSegment(V(-11, -82.2, 0), V(-10.3, -84, 0)),
    Part.LineSegment(V(-10.3, -84, 0), V(-7.5, -83, 0)),
    Part.LineSegment(V(-7.5, -83, 0), V(-8.1, -81.2, 0)),
    Part.ArcOfCircle(Part.Circle(V(-9.6, -81.7, 0), V(0, 0, 1), 1.5), math.radians(20), math.radians(200)),
], False)
sketch8.addConstraint([
    Sketcher.Constraint("Coincident", 0, 2, 1, 1),
    Sketcher.Constraint("Coincident", 1, 2, 2, 1),
    Sketcher.Constraint("Tangent", 2, 2, 3, 1),
    Sketcher.Constraint("Tangent", 3, 2, 0, 1),
    Sketcher.Constraint("Perpendicular", 0, 1),
    Sketcher.Constraint("Perpendicular", 1, 2),
    Sketcher.Constraint("Radius", 3, 1.5),
    Sketcher.Constraint("Angle", 0, Q("-70.000008 deg")),
    Sketcher.Constraint("DistanceY", 1, 2, -1, 1, 83.0),
    Sketcher.Constraint("Distance", 0, 1.9),
    Sketcher.Constraint("DistanceX", 1, 2, -1, 1, 7.5),
])
pocket7 = body.newObject("PartDesign::Pocket", "Pocket006")
pocket7.Profile = sketch8
pocket7.Type = "TwoLengths"
pocket7.Length = 5
pocket7.Length2 = 2.4
doc.recompute()

fillet5 = body.newObject("PartDesign::Fillet", "Fillet004")
fillet5.Base = (pocket7, edges_at(pocket7, [(-10.356, -83.925, -4.65), (-7.537, -82.899, -4.65)]))
fillet5.Radius = 1
doc.recompute()

fillet6 = body.newObject("PartDesign::Fillet", "Fillet005")
fillet6.Base = (fillet5, edges_at(fillet5, [
    (25, -73.802, 2.2),
    (24.854, -73.151, 2.2),
    (24.414, -75.514, 2.2),
    (24.377, -73.004, 2.2),
    (19.308, -76.1, 2.2),
    (15.26, -74.64, 2.2),
    (11.138, -76.914, 2.2),
    (-3.064, -79.674, 2.2),
    (-2.611, -81.105, 2.2),
    (-13.767, -83.013, 2.2),
    (-14.397, -84.374, 2.2),
    (-17.64, -74.054, 2.2),
    (-18.874, -75.044, 2.2),
    (-20.816, -66.191, 2.2),
    (-21.612, -66.798, 2.2),
    (42.15, -76.1, -3.9),
    (0.031, -80.143, -6.6),
    (-7.362, -82.523, -6.6),
    (11.138, -76.914, -6.6),
    (-8.014, -81.587, -6.6),
    (56.008, -76.1, -6.6),
    (-10.072, -80.318, -6.6),
    (98.733, -75.133, -6.6),
    (-10.833, -82.613, -6.6),
    (99.7, -40.3, -6.6),
    (-10.731, -83.75, -6.6),
    (98.733, -5.467, -6.6),
    (-11.589, -84.374, -6.6),
    (88.05, -4.5, -6.6),
    (-14.397, -84.374, -6.6),
    (79.7, -3.2, -6.6),
    (-18.874, -75.044, -6.6),
    (78.733, 0.433, -6.6),
    (-21.612, -66.798, -6.6),
    (69.55, 1.4, -6.6),
    (-20.675, -66.139, -6.6),
    (62.7, 1.9, -6.6),
    (-21.2, -63.527, -6.6),
    (61.733, 4.733, -6.6),
    (-22.1, -31.027, -6.6),
    (52.35, 5.7, -6.6),
    (-21.807, -0.293, -6.6),
    (43.953, 5.412, -6.6),
    (-5.849, 0, -6.6),
    (34.02, 4.6, -6.6),
    (9.754, 0.146, -6.6),
    (23.627, 4.201, -6.6),
    (9.9, 1.3, -6.6),
    (16.667, 3.1, -6.6),
    (10.193, 2.807, -6.6),
    (-16.5, -73.8, -6.6),
    (93.1, -57.3, -6.6),
    (23.4, 0.6, -6.6),
    (93.1, -23.3, -6.6),
    (59.3, -71.65, 2.2),
    (59.446, -68.846, 2.2),
    (59.886, -75.514, 2.2),
    (67.751, -68.7, 2.2),
    (78.85, -76.1, 2.2),
    (76.054, -68.846, 2.2),
    (98.733, -75.133, 2.2),
    (76.2, -70.999, 2.2),
    (99.7, -40.3, 2.2),
    (76.727, -74.073, 2.2),
    (98.733, -5.467, 2.2),
    (87.2, -74.6, 2.2),
    (88.05, -4.5, 2.2),
    (97.673, -74.073, 2.2),
    (79.7, -3.2, 2.2),
    (98.2, -40.3, 2.2),
    (78.733, 0.433, 2.2),
    (97.673, -6.527, 2.2),
    (69.55, 1.4, 2.2),
    (87.549, -6, 2.2),
    (62.7, 1.9, 2.2),
    (78.346, -5.854, 2.2),
    (61.733, 4.733, 2.2),
    (78.2, -3.7, 2.2),
    (52.35, 5.7, 2.2),
    (77.673, -0.627, 2.2),
    (43.953, 5.412, 2.2),
    (69.049, -0.1, 2.2),
    (34.02, 4.6, 2.2),
    (61.346, 0.046, 2.2),
    (23.627, 4.201, 2.2),
    (61.2, 1.399, 2.2),
    (16.667, 3.1, 2.2),
    (60.673, 3.673, 2.2),
    (10.193, 2.807, 2.2),
    (52.35, 4.2, 2.2),
    (9.9, 1.85, 2.2),
    (44.42, 3.97, 2.2),
    (16.472, 1.6, 2.2),
    (43.582, 3.164, 2.2),
    (23.329, 1.689, 2.2),
    (34.269, 3.1, 2.2),
    (24.172, 2.778, 2.2),
]))
fillet6.Radius = 0.299

doc.recompute()
